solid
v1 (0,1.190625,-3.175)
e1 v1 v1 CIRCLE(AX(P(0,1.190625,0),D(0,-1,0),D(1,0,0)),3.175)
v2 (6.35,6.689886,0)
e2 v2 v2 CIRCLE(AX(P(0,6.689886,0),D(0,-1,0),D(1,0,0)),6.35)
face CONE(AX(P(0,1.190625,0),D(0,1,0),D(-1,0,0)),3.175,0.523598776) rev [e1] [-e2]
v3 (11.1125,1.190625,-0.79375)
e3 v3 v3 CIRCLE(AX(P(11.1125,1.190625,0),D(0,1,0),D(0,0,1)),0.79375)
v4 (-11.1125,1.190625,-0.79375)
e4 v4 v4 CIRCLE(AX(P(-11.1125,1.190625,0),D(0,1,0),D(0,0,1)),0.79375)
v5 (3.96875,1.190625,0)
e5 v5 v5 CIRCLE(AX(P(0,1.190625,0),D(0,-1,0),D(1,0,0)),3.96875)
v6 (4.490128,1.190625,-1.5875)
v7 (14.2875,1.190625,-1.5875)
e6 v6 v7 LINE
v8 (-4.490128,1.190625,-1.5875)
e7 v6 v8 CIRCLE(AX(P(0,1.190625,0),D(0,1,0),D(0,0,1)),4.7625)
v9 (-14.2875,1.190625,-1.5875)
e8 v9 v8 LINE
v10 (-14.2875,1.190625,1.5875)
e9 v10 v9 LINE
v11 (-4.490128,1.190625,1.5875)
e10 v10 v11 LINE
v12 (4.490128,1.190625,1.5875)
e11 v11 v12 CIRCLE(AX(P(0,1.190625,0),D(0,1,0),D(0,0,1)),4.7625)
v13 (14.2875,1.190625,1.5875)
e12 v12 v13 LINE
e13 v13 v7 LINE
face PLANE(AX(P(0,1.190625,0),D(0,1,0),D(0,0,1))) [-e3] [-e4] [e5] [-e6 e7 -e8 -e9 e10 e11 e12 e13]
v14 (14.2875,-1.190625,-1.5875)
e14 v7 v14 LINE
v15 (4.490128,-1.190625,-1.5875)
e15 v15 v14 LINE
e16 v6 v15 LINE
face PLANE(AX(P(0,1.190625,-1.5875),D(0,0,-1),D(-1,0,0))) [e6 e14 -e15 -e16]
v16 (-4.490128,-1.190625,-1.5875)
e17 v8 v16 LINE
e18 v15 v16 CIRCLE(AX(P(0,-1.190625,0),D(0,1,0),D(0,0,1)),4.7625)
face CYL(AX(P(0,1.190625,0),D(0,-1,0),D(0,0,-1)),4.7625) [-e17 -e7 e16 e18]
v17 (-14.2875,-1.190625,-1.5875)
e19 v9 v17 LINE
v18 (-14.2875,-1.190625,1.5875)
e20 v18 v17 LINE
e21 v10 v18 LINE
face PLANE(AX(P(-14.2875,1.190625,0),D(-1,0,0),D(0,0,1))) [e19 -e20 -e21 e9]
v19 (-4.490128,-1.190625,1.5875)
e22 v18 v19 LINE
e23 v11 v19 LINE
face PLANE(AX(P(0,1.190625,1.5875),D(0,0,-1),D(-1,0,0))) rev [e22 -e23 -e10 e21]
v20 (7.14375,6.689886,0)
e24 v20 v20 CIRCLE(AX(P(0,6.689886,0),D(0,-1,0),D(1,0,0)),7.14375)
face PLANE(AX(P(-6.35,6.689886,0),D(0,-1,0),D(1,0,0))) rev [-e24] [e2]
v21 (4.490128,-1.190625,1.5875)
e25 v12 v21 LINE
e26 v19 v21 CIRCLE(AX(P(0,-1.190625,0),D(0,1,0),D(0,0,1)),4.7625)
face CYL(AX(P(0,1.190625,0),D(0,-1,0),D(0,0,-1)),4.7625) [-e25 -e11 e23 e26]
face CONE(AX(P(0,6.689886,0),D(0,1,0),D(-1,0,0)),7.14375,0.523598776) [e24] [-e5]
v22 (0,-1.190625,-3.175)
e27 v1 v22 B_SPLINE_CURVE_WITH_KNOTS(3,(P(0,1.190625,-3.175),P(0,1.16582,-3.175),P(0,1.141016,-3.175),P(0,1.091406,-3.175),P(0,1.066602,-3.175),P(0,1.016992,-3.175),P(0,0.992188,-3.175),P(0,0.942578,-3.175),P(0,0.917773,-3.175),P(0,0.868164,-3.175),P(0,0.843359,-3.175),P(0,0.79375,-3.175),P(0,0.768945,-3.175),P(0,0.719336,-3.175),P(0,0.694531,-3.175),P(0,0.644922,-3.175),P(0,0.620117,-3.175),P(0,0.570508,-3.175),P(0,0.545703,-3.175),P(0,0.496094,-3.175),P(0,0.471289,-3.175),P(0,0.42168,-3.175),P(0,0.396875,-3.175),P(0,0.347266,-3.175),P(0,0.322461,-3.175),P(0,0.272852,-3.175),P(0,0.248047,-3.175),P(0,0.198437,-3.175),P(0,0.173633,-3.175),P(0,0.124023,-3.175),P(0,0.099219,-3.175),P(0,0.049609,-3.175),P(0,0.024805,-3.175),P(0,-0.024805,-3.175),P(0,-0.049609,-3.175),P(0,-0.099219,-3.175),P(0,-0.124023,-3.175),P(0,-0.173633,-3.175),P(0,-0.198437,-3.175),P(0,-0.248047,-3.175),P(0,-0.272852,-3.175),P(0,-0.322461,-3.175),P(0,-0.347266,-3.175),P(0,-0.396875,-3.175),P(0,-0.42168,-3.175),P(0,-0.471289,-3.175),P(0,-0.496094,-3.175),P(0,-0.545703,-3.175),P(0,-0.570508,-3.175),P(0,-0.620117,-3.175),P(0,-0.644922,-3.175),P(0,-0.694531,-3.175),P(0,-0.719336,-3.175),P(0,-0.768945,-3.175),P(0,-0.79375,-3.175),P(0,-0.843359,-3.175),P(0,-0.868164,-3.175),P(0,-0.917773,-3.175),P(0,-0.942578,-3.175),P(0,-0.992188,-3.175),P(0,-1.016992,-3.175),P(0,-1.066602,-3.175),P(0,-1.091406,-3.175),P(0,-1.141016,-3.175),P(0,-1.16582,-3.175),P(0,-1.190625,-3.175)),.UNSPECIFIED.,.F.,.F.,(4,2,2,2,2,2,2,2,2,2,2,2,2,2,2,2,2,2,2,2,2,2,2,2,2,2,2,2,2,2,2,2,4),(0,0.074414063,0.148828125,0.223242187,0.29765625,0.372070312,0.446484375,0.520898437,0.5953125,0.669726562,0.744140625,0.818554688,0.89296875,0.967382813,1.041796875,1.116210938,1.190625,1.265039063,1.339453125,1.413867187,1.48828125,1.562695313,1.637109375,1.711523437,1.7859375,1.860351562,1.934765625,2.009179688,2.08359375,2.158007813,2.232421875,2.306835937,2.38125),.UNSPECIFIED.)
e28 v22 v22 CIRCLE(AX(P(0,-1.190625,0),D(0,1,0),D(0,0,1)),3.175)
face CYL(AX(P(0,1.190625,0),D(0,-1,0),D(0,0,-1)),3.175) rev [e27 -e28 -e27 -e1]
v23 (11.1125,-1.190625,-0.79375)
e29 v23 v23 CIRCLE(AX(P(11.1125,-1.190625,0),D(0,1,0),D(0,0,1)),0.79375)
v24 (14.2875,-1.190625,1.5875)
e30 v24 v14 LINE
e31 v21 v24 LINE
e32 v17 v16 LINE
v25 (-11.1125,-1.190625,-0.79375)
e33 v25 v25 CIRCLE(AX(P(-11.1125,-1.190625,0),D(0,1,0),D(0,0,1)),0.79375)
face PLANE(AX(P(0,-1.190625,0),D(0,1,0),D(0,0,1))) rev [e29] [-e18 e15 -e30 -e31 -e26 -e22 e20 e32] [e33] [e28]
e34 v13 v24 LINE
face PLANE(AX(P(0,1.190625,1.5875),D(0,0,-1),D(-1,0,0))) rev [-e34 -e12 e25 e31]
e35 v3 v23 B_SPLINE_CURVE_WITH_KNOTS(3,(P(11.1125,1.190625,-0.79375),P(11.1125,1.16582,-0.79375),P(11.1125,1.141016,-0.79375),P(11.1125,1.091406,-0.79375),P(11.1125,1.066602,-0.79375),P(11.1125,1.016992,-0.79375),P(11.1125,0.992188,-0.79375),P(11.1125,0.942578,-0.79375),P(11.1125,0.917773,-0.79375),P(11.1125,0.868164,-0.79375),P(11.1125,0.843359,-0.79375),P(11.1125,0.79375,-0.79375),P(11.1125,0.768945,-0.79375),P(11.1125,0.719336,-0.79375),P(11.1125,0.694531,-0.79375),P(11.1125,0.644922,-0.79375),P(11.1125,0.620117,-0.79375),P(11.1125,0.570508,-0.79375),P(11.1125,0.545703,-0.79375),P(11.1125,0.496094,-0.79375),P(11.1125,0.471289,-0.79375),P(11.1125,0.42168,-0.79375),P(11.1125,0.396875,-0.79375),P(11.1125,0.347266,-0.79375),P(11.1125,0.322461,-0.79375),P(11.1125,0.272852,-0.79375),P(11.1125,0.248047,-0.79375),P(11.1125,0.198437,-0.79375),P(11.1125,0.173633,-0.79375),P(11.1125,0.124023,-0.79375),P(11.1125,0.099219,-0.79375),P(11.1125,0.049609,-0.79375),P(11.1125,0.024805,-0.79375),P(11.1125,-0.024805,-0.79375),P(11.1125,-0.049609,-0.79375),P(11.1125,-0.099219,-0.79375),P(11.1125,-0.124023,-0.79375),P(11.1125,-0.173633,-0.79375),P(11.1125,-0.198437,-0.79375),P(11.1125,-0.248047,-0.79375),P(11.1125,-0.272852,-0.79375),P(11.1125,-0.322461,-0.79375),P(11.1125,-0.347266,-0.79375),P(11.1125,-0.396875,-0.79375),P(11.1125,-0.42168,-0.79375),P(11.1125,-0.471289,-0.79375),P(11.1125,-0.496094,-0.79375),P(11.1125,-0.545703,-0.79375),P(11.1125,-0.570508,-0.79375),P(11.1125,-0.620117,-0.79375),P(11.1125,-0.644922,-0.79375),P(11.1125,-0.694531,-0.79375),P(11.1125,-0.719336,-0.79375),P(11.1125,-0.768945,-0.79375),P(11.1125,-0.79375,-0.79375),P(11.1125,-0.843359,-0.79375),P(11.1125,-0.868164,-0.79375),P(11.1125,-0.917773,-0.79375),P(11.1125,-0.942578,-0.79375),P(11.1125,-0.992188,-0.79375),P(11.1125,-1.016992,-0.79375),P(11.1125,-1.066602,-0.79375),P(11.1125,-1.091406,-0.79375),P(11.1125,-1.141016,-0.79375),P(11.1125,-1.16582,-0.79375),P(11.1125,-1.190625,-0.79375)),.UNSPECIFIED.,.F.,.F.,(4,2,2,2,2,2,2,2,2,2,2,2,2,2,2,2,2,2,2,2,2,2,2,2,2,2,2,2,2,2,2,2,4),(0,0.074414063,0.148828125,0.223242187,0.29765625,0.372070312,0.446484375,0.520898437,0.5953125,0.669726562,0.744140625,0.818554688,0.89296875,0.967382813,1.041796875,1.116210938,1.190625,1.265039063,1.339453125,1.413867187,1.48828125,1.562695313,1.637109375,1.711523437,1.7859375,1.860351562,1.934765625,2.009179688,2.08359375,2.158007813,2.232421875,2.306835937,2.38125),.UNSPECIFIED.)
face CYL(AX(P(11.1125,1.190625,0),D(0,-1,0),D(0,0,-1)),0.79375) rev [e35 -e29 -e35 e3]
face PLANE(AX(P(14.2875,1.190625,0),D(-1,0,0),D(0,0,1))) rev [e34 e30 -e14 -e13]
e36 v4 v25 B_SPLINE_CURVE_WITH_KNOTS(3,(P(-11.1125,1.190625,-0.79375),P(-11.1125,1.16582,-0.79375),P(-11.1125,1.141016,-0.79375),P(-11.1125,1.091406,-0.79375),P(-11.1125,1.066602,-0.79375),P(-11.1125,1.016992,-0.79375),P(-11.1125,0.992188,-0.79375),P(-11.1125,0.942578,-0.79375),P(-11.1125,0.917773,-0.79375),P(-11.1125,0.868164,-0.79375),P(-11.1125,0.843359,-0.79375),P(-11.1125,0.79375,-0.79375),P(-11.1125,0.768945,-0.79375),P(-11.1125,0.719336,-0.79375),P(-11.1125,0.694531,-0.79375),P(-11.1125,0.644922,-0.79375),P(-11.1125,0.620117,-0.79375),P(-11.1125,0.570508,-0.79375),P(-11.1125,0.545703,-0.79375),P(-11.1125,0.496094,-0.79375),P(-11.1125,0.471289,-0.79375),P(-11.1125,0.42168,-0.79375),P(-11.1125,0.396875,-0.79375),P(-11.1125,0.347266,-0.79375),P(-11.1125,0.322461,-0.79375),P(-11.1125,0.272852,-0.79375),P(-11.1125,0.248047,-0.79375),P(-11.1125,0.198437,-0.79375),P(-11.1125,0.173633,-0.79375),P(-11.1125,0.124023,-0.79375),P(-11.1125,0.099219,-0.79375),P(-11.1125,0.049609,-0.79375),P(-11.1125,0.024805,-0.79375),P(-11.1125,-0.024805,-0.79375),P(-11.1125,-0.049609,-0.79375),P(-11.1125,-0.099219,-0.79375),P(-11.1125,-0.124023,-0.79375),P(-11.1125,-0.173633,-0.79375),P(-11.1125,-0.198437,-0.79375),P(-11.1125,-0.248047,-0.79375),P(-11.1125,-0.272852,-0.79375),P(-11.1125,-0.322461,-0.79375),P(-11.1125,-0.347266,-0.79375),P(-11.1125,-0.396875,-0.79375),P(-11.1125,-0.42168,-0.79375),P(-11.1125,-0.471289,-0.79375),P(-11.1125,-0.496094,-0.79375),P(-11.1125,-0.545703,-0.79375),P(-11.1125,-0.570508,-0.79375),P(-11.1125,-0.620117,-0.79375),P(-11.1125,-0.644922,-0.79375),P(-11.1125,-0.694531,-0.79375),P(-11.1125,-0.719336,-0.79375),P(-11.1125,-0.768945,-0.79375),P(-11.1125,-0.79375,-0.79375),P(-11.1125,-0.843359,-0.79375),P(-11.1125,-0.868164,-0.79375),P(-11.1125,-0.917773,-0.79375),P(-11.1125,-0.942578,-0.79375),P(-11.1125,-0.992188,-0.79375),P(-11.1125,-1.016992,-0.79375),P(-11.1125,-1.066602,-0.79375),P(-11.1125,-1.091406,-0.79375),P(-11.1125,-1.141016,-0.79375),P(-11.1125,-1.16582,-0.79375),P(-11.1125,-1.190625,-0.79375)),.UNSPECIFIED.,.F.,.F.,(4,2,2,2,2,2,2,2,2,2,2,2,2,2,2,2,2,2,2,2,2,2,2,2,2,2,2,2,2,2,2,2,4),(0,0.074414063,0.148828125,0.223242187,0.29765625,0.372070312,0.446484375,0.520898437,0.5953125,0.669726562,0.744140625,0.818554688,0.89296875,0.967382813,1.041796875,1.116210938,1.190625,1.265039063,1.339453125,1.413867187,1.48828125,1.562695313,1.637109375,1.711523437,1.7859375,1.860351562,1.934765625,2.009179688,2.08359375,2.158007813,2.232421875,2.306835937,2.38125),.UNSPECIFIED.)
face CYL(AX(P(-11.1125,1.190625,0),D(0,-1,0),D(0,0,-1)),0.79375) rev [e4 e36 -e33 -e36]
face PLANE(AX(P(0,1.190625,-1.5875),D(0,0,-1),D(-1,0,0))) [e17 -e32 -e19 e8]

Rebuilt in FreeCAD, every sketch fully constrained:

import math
import FreeCAD as App
import Part
import Sketcher
from FreeCAD import Vector
Q = App.Units.Quantity


def add_polygon(sketch, points):
    """Adds a closed chain of lines whose ends are joined by coincident constraints."""
    first, n = sketch.GeometryCount, len(points)
    for a, b in zip(points, points[1:] + points[:1]):
        sketch.addGeometry(Part.LineSegment(App.Vector(*a, 0), App.Vector(*b, 0)), False)
    for i in range(n):
        sketch.addConstraint(Sketcher.Constraint("Coincident", first + i, 2, first + (i + 1) % n, 1))

doc = App.newDocument("Part")
body = doc.addObject("PartDesign::Body", "Body")

# Sketch on XZ plane
sketch1 = body.newObject("Sketcher::SketchObject", "Sketch")
sketch1.AttachmentSupport = (doc.getObject("XZ_Plane"), [""])
sketch1.MapMode = "FlatFace"
sketch1.addGeometry([
    Part.LineSegment(Vector(-14.3, 1.6, 0), Vector(-4.5, 1.6, 0)),  # 0
    Part.ArcOfCircle(Part.Circle(Vector(0, 0, 0), Vector(0, 0, 1), 4.8), math.radians(19), math.radians(161)),  # 1
    Part.LineSegment(Vector(4.5, 1.6, 0), Vector(14.3, 1.6, 0)),  # 2
    Part.LineSegment(Vector(14.3, 1.6, 0), Vector(14.3, -1.6, 0)),  # 3
    Part.LineSegment(Vector(14.3, -1.6, 0), Vector(4.5, -1.6, 0)),  # 4
    Part.ArcOfCircle(Part.Circle(Vector(0, 0, 0), Vector(0, 0, 1), 4.8), math.radians(-161), math.radians(-19)),  # 5
    Part.LineSegment(Vector(-4.5, -1.6, 0), Vector(-14.3, -1.6, 0)),  # 6
    Part.LineSegment(Vector(-14.3, -1.6, 0), Vector(-14.3, 1.6, 0)),  # 7
    Part.Circle(Vector(-11.1, 0, 0), Vector(0, 0, 1), 0.8),  # 8
    Part.ArcOfCircle(Part.Circle(Vector(0, 0, 0), Vector(0, 0, 1), 3.2), math.radians(-180), math.radians(-150)),  # 9
    Part.ArcOfCircle(Part.Circle(Vector(0, 0, 0), Vector(0, 0, 1), 3.2), math.radians(-150), math.radians(-30)),  # 10
    Part.ArcOfCircle(Part.Circle(Vector(0, 0, 0), Vector(0, 0, 1), 3.2), math.radians(-30), math.radians(0)),  # 11
    Part.ArcOfCircle(Part.Circle(Vector(0, 0, 0), Vector(0, 0, 1), 3.2), math.radians(0), math.radians(30)),  # 12
    Part.ArcOfCircle(Part.Circle(Vector(0, 0, 0), Vector(0, 0, 1), 3.2), math.radians(30), math.radians(150)),  # 13
    Part.ArcOfCircle(Part.Circle(Vector(0, 0, 0), Vector(0, 0, 1), 3.2), math.radians(150), math.radians(180)),  # 14
    Part.Circle(Vector(11.1, 0, 0), Vector(0, 0, 1), 0.8),  # 15
], False)
sketch1.addConstraint([
    Sketcher.Constraint("Coincident", 0, 2, 1, 2),
    Sketcher.Constraint("Coincident", 1, 1, 2, 1),
    Sketcher.Constraint("Coincident", 2, 2, 3, 1),
    Sketcher.Constraint("Coincident", 3, 2, 4, 1),
    Sketcher.Constraint("Coincident", 4, 2, 5, 2),
    Sketcher.Constraint("Coincident", 5, 1, 6, 1),
    Sketcher.Constraint("Coincident", 6, 2, 7, 1),
    Sketcher.Constraint("Coincident", 7, 2, 0, 1),
    Sketcher.Constraint("Tangent", 9, 2, 10, 1),
    Sketcher.Constraint("Tangent", 10, 2, 11, 1),
    Sketcher.Constraint("Tangent", 11, 2, 12, 1),
    Sketcher.Constraint("Tangent", 12, 2, 13, 1),
    Sketcher.Constraint("Tangent", 13, 2, 14, 1),
    Sketcher.Constraint("Tangent", 14, 2, 9, 1),
    Sketcher.Constraint("Horizontal", 0),
    Sketcher.Constraint("Horizontal", 2),
    Sketcher.Constraint("Vertical", 3),
    Sketcher.Constraint("Horizontal", 4),
    Sketcher.Constraint("Horizontal", 6),
    Sketcher.Constraint("Vertical", 7),
    Sketcher.Constraint("Coincident", 1, 3, -1, 1),
    Sketcher.Constraint("Coincident", 5, 3, -1, 1),
    Sketcher.Constraint("Coincident", 9, 3, -1, 1),
    Sketcher.Constraint("Coincident", 11, 3, -1, 1),
    Sketcher.Constraint("Equal", 1, 5),
    Sketcher.Constraint("Equal", 11, 12),
    Sketcher.Constraint("Equal", 8, 15),
    Sketcher.Constraint("Symmetric", 8, 3, 15, 3, -1, 1),
    Sketcher.Constraint("Symmetric", 2, 2, 6, 2, -1, 1),
    Sketcher.Constraint("PointOnObject", 8, 3, -1),
    Sketcher.Constraint("PointOnObject", 11, 2, -1),
    Sketcher.Constraint("PointOnObject", 14, 2, -1),
    Sketcher.Constraint("Horizontal", 0, 2, 1, 1),
    Sketcher.Constraint("Horizontal", 4, 2, 5, 1),
    Sketcher.Constraint("Horizontal", 6, 2, 9, 2),
    Sketcher.Constraint("Horizontal", 9, 2, 10, 2),
    Sketcher.Constraint("Horizontal", 7, 2, 12, 2),
    Sketcher.Constraint("Horizontal", 12, 2, 13, 2),
    Sketcher.Constraint("Diameter", 8, Q("0.0625 in")),
    Sketcher.Constraint("Radius", 1, Q("0.1875 in")),
    Sketcher.Constraint("Radius", 9, Q("0.125 in")),
    Sketcher.Constraint("DistanceY", 3, 2, 3, 1, Q("0.125 in")),
    Sketcher.Constraint("DistanceX", 8, 3, -1, 1, Q("0.4375 in")),
    Sketcher.Constraint("DistanceX", -1, 1, 2, 2, Q("0.5625 in")),
])
pad1 = body.newObject("PartDesign::Pad", "Pad")
pad1.Profile = sketch1
pad1.Length = Q("0.09375 in")
pad1.Midplane = True

# Sketch on XY plane
sketch2 = body.newObject("Sketcher::SketchObject", "Sketch001")
sketch2.AttachmentSupport = (doc.getObject("XY_Plane"), [""])
sketch2.MapMode = "FlatFace"
add_polygon(sketch2, [(-3.2, 1.2), (-6.3, 6.7), (-7.1, 6.7), (-4, 1.2)])  # lines 0-3
sketch2.addConstraint([
    Sketcher.Constraint("Horizontal", 1),
    Sketcher.Constraint("Horizontal", 3),
    Sketcher.Constraint("Parallel", 0, 2),
    Sketcher.Constraint("Angle", 0, Q("120 deg")),
    Sketcher.Constraint("Distance", 0, Q("0.25 in")),
    Sketcher.Constraint("DistanceX", 1, 2, 1, 1, Q("0.03125 in")),
    Sketcher.Constraint("DistanceX", 0, 2, -1, 1, Q("0.25 in")),
    Sketcher.Constraint("DistanceY", -1, 1, 2, 2, Q("0.046875 in")),
])
revolution = body.newObject("PartDesign::Revolution", "Revolution")
revolution.Profile = sketch2
revolution.ReferenceAxis = (sketch2, ["V_Axis"])
revolution.Angle = 360

doc.recompute()
